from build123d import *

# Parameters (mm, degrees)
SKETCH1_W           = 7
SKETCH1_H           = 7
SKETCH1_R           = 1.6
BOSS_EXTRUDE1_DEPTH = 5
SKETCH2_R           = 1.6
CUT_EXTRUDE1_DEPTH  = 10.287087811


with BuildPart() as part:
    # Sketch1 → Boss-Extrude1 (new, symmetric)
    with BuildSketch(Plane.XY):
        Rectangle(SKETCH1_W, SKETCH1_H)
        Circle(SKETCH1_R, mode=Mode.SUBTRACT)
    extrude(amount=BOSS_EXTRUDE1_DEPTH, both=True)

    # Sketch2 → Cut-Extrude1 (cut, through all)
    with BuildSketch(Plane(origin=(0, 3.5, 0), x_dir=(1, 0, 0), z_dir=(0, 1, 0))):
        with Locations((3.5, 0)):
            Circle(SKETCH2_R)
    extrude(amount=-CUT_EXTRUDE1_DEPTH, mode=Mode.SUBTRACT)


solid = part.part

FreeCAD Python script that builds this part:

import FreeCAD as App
import Part
import Sketcher


def add_polygon(sketch, points):
    """Adds a closed chain of lines whose ends are joined by coincident constraints."""
    first, n = sketch.GeometryCount, len(points)
    for a, b in zip(points, points[1:] + points[:1]):
        sketch.addGeometry(Part.LineSegment(App.Vector(*a, 0), App.Vector(*b, 0)), False)
    for i in range(n):
        sketch.addConstraint(Sketcher.Constraint("Coincident", first + i, 2, first + (i + 1) % n, 1))

doc = App.newDocument("Part")
body = doc.addObject("PartDesign::Body", "Body")

sketch1 = doc.addObject("Sketcher::SketchObject", "Sketch")
body.addObject(sketch1)
sketch1.AttachmentSupport = (doc.XY_Plane, [""])
sketch1.MapMode = "FlatFace"
add_polygon(sketch1, [(-3.5, 3.5), (-3.5, -3.5), (3.5, -3.5), (3.5, 3.5)])
sketch1.addGeometry(Part.Circle(App.Vector(0, 0, 0), App.Vector(0, 0, 1), 1.6), False)
sketch1.addConstraint(Sketcher.Constraint("Vertical", 0))
sketch1.addConstraint(Sketcher.Constraint("Horizontal", 1))
sketch1.addConstraint(Sketcher.Constraint("Vertical", 2))
sketch1.addConstraint(Sketcher.Constraint("Horizontal", 3))
sketch1.addConstraint(Sketcher.Constraint("Coincident", 4, 3, -1, 1))
sketch1.addConstraint(Sketcher.Constraint("Symmetric", 0, 2, 2, 2, -1, 1))
sketch1.addConstraint(Sketcher.Constraint("Equal", 3, 0))
sketch1.addConstraint(Sketcher.Constraint("Diameter", 4, 3.2))
sketch1.addConstraint(Sketcher.Constraint("DistanceX", 1, 1, 1, 2, 7.0))
pad1 = doc.addObject("PartDesign::Pad", "Pad")
body.addObject(pad1)
pad1.Profile = sketch1
pad1.Length = 10
pad1.Midplane = True

sketch2 = doc.addObject("Sketcher::SketchObject", "Sketch001")
body.addObject(sketch2)
sketch2.AttachmentSupport = (doc.XZ_Plane, [""])
sketch2.MapMode = "FlatFace"
sketch2.AttachmentOffset = App.Placement(App.Vector(0, 0, -3.5), App.Rotation())
sketch2.addGeometry(Part.Circle(App.Vector(3.5, 0, 0), App.Vector(0, 0, 1), 1.6), False)
sketch2.addConstraint(Sketcher.Constraint("PointOnObject", 0, 3, -1))
sketch2.addConstraint(Sketcher.Constraint("Diameter", 0, 3.2))
sketch2.addConstraint(Sketcher.Constraint("DistanceX", -1, 1, 0, 3, 3.5))
pocket1 = doc.addObject("PartDesign::Pocket", "Pocket")
body.addObject(pocket1)
pocket1.Profile = sketch2
pocket1.Type = "ThroughAll"
pocket1.Reversed = True

doc.recompute()
